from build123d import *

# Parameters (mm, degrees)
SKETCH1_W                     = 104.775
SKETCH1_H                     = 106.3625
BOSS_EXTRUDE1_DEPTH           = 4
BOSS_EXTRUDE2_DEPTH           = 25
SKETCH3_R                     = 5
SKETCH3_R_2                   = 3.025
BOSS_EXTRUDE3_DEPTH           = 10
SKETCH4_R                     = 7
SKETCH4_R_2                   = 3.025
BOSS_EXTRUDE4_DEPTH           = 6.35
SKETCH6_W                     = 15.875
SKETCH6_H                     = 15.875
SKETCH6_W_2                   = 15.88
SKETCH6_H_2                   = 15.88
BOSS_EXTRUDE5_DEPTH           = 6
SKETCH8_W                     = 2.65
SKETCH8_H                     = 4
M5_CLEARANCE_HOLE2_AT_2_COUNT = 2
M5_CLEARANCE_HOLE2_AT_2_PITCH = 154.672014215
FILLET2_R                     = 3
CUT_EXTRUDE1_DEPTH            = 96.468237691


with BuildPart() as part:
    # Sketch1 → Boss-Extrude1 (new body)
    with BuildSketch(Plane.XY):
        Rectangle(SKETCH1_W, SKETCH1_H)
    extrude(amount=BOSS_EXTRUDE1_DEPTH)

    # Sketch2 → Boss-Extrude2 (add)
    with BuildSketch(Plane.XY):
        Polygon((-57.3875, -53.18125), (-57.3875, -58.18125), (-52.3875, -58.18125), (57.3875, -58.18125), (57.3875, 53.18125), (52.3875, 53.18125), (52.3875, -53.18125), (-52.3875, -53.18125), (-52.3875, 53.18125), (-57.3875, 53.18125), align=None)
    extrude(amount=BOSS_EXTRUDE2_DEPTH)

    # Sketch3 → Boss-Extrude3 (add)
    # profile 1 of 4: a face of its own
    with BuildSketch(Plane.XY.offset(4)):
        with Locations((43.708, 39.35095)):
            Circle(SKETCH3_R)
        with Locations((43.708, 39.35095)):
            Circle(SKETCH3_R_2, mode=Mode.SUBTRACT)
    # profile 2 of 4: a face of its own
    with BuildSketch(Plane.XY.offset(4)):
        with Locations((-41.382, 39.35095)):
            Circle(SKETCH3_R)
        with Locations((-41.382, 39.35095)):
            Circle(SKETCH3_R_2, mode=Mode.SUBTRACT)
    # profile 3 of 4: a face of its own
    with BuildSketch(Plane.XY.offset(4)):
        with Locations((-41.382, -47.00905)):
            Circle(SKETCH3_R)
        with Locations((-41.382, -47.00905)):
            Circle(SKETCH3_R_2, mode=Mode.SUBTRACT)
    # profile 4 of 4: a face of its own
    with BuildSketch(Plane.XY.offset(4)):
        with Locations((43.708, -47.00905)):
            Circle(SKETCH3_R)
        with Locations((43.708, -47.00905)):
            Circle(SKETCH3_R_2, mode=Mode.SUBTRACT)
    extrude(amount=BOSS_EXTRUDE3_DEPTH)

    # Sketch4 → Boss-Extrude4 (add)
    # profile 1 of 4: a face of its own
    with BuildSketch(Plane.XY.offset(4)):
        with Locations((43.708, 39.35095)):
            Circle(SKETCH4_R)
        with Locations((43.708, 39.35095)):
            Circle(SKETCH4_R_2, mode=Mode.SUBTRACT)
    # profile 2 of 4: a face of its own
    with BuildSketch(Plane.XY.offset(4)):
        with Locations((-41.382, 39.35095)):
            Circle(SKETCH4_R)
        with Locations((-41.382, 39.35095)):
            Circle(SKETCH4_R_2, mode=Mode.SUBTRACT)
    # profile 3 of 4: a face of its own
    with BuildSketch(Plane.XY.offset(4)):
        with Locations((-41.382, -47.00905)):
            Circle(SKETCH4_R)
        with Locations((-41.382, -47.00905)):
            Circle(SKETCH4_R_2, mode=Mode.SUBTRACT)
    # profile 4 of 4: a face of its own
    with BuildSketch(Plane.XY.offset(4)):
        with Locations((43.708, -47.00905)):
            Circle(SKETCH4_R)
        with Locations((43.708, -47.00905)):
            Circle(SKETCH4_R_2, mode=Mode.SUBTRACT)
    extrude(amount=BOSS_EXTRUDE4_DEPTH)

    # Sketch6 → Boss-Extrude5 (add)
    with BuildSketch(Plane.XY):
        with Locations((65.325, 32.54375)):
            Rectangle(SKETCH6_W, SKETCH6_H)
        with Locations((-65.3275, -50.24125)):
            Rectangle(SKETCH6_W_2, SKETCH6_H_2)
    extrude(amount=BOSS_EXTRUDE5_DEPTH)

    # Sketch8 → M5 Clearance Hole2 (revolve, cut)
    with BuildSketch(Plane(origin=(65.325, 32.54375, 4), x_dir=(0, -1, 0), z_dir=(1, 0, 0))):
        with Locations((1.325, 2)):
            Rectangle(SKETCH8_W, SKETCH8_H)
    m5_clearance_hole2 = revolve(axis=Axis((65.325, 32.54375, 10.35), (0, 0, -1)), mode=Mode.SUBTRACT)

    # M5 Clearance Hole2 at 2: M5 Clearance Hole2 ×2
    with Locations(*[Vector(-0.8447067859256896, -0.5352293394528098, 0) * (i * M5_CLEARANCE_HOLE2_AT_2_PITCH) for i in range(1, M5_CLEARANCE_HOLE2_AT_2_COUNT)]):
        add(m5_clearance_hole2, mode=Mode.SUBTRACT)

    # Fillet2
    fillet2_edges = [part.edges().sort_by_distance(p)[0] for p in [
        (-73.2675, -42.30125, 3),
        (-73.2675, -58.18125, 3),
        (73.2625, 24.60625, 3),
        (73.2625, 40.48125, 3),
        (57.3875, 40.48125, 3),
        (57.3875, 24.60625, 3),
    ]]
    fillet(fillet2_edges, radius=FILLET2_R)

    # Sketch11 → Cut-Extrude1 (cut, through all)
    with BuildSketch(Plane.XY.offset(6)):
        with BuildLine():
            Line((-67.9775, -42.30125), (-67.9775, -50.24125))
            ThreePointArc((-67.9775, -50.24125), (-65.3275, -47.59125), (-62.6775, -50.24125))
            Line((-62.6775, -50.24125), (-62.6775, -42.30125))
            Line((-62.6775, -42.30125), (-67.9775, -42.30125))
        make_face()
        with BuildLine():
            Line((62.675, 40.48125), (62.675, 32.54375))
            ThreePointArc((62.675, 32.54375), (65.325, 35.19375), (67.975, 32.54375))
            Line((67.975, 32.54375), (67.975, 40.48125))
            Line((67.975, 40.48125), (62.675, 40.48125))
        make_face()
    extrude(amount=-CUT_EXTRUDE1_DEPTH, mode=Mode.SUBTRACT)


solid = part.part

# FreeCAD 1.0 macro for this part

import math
import FreeCAD as App
import Part
import Sketcher

V = App.Vector


def edges_at(feature, points):
    """Names of the edges that pass closest to the given points."""
    edges = feature.Shape.Edges
    near = lambda p: min(range(len(edges)), key=lambda i: edges[i].distToShape(Part.Vertex(*p))[0])
    return sorted({f"Edge{near(p) + 1}" for p in points})

doc = App.newDocument("Part")
body = doc.addObject("PartDesign::Body", "Body")

# Sketch on XY plane
sketch1 = body.newObject("Sketcher::SketchObject", "Sketch")
sketch1.AttachmentSupport = (doc.getObject("XY_Plane"), [""])
sketch1.MapMode = "FlatFace"
sketch1.addGeometry(Part.LineSegment(V(-52, 53, 0), V(-52, -53, 0)), False)
sketch1.addGeometry(Part.LineSegment(V(-52, -53, 0), V(52, -53, 0)), False)
sketch1.addGeometry(Part.LineSegment(V(52, -53, 0), V(52, 53, 0)), False)
sketch1.addGeometry(Part.LineSegment(V(52, 53, 0), V(-52, 53, 0)), False)
sketch1.addConstraint(Sketcher.Constraint("Coincident", 0, 2, 1, 1))
sketch1.addConstraint(Sketcher.Constraint("Coincident", 1, 2, 2, 1))
sketch1.addConstraint(Sketcher.Constraint("Coincident", 2, 2, 3, 1))
sketch1.addConstraint(Sketcher.Constraint("Coincident", 3, 2, 0, 1))
sketch1.addConstraint(Sketcher.Constraint("Vertical", 0))
sketch1.addConstraint(Sketcher.Constraint("Horizontal", 1))
sketch1.addConstraint(Sketcher.Constraint("Vertical", 2))
sketch1.addConstraint(Sketcher.Constraint("Horizontal", 3))
sketch1.addConstraint(Sketcher.Constraint("Symmetric", 0, 2, 2, 2, -1, 1))
sketch1.addConstraint(Sketcher.Constraint("DistanceX", 1, 1, 1, 2, 104.775))
sketch1.addConstraint(Sketcher.Constraint("DistanceY", 0, 2, 0, 1, 106.3625))
pad1 = body.newObject("PartDesign::Pad", "Pad")
pad1.Profile = sketch1
pad1.Length = 4

# Sketch on XY plane
sketch2 = body.newObject("Sketcher::SketchObject", "Sketch001")
sketch2.AttachmentSupport = (doc.getObject("XY_Plane"), [""])
sketch2.MapMode = "FlatFace"
sketch2.addGeometry(Part.LineSegment(V(-57, -58, 0), V(57, -58, 0)), False)
sketch2.addGeometry(Part.LineSegment(V(57, -58, 0), V(57, 53, 0)), False)
sketch2.addGeometry(Part.LineSegment(V(57, 53, 0), V(52, 53, 0)), False)
sketch2.addGeometry(Part.LineSegment(V(52, 53, 0), V(52, -53, 0)), False)
sketch2.addGeometry(Part.LineSegment(V(52, -53, 0), V(-52, -53, 0)), False)
sketch2.addGeometry(Part.LineSegment(V(-52, -53, 0), V(-52, 53, 0)), False)
sketch2.addGeometry(Part.LineSegment(V(-52, 53, 0), V(-57, 53, 0)), False)
sketch2.addGeometry(Part.LineSegment(V(-57, 53, 0), V(-57, -58, 0)), False)
sketch2.addConstraint(Sketcher.Constraint("Coincident", 0, 2, 1, 1))
sketch2.addConstraint(Sketcher.Constraint("Coincident", 1, 2, 2, 1))
sketch2.addConstraint(Sketcher.Constraint("Coincident", 2, 2, 3, 1))
sketch2.addConstraint(Sketcher.Constraint("Coincident", 3, 2, 4, 1))
sketch2.addConstraint(Sketcher.Constraint("Coincident", 4, 2, 5, 1))
sketch2.addConstraint(Sketcher.Constraint("Coincident", 5, 2, 6, 1))
sketch2.addConstraint(Sketcher.Constraint("Coincident", 6, 2, 7, 1))
sketch2.addConstraint(Sketcher.Constraint("Coincident", 7, 2, 0, 1))
sketch2.addConstraint(Sketcher.Constraint("Horizontal", 0))
sketch2.addConstraint(Sketcher.Constraint("Vertical", 1))
sketch2.addConstraint(Sketcher.Constraint("Horizontal", 2))
sketch2.addConstraint(Sketcher.Constraint("Vertical", 3))
sketch2.addConstraint(Sketcher.Constraint("Horizontal", 4))
sketch2.addConstraint(Sketcher.Constraint("Vertical", 5))
sketch2.addConstraint(Sketcher.Constraint("Horizontal", 6))
sketch2.addConstraint(Sketcher.Constraint("Vertical", 7))
sketch2.addConstraint(Sketcher.Constraint("Symmetric", 2, 2, 4, 2, -1, 1))
sketch2.addConstraint(Sketcher.Constraint("Symmetric", 1, 2, 6, 2, -2))
sketch2.addConstraint(Sketcher.Constraint("DistanceX", 2, 2, 2, 1, 5.0))
sketch2.addConstraint(Sketcher.Constraint("DistanceY", 0, 2, 3, 2, 5.0))
sketch2.addConstraint(Sketcher.Constraint("DistanceX", 0, 1, 0, 2, 114.775))
sketch2.addConstraint(Sketcher.Constraint("DistanceY", 1, 1, 1, 2, 111.3625))
pad2 = body.newObject("PartDesign::Pad", "Pad001")
pad2.Profile = sketch2
pad2.Length = 25

# Sketch on XY plane
sketch3 = body.newObject("Sketcher::SketchObject", "Sketch002")
sketch3.AttachmentSupport = (doc.getObject("XY_Plane"), [""])
sketch3.MapMode = "FlatFace"
sketch3.AttachmentOffset = App.Placement(V(0, 0, 4), App.Rotation())
sketch3.addGeometry(Part.Circle(V(43.7, 39.4, 0), V(0, 0, 1), 5), False)
sketch3.addGeometry(Part.Circle(V(43.7, 39.4, 0), V(0, 0, 1), 3), False)
sketch3.addGeometry(Part.Circle(V(-41.4, 39.4, 0), V(0, 0, 1), 5), False)
sketch3.addGeometry(Part.Circle(V(-41.4, 39.4, 0), V(0, 0, 1), 3), False)
sketch3.addGeometry(Part.Circle(V(-41.4, -47, 0), V(0, 0, 1), 5), False)
sketch3.addGeometry(Part.Circle(V(-41.4, -47, 0), V(0, 0, 1), 3), False)
sketch3.addGeometry(Part.Circle(V(43.7, -47, 0), V(0, 0, 1), 5), False)
sketch3.addGeometry(Part.Circle(V(43.7, -47, 0), V(0, 0, 1), 3), False)
sketch3.addConstraint(Sketcher.Constraint("Coincident", 1, 3, 0, 3))
sketch3.addConstraint(Sketcher.Constraint("Coincident", 3, 3, 2, 3))
sketch3.addConstraint(Sketcher.Constraint("Coincident", 5, 3, 4, 3))
sketch3.addConstraint(Sketcher.Constraint("Coincident", 7, 3, 6, 3))
sketch3.addConstraint(Sketcher.Constraint("Equal", 0, 2))
sketch3.addConstraint(Sketcher.Constraint("Equal", 1, 3))
sketch3.addConstraint(Sketcher.Constraint("Equal", 2, 4))
sketch3.addConstraint(Sketcher.Constraint("Equal", 3, 5))
sketch3.addConstraint(Sketcher.Constraint("Equal", 4, 6))
sketch3.addConstraint(Sketcher.Constraint("Equal", 5, 7))
sketch3.addConstraint(Sketcher.Constraint("Horizontal", 1, 3, 2, 3))
sketch3.addConstraint(Sketcher.Constraint("Horizontal", 5, 3, 6, 3))
sketch3.addConstraint(Sketcher.Constraint("Vertical", 3, 3, 4, 3))
sketch3.addConstraint(Sketcher.Constraint("Vertical", 1, 3, 6, 3))
sketch3.addConstraint(Sketcher.Constraint("Diameter", 0, 10.0))
sketch3.addConstraint(Sketcher.Constraint("Diameter", 1, 6.05))
sketch3.addConstraint(Sketcher.Constraint("DistanceX", 2, 3, 0, 3, 85.09))
sketch3.addConstraint(Sketcher.Constraint("DistanceY", 4, 3, 2, 3, 86.36))
sketch3.addConstraint(Sketcher.Constraint("DistanceX", -1, 1, 0, 3, 43.708))
sketch3.addConstraint(Sketcher.Constraint("DistanceY", -1, 1, 0, 3, 39.35095))
pad3 = body.newObject("PartDesign::Pad", "Pad002")
pad3.Profile = sketch3
pad3.Length = 10

# Sketch on XY plane
sketch4 = body.newObject("Sketcher::SketchObject", "Sketch003")
sketch4.AttachmentSupport = (doc.getObject("XY_Plane"), [""])
sketch4.MapMode = "FlatFace"
sketch4.AttachmentOffset = App.Placement(V(0, 0, 4), App.Rotation())
sketch4.addGeometry(Part.Circle(V(43.7, 39.4, 0), V(0, 0, 1), 7), False)
sketch4.addGeometry(Part.Circle(V(43.7, 39.4, 0), V(0, 0, 1), 3), False)
sketch4.addGeometry(Part.Circle(V(-41.4, 39.4, 0), V(0, 0, 1), 7), False)
sketch4.addGeometry(Part.Circle(V(-41.4, 39.4, 0), V(0, 0, 1), 3), False)
sketch4.addGeometry(Part.Circle(V(-41.4, -47, 0), V(0, 0, 1), 7), False)
sketch4.addGeometry(Part.Circle(V(-41.4, -47, 0), V(0, 0, 1), 3), False)
sketch4.addGeometry(Part.Circle(V(43.7, -47, 0), V(0, 0, 1), 7), False)
sketch4.addGeometry(Part.Circle(V(43.7, -47, 0), V(0, 0, 1), 3), False)
sketch4.addConstraint(Sketcher.Constraint("Coincident", 1, 3, 0, 3))
sketch4.addConstraint(Sketcher.Constraint("Coincident", 3, 3, 2, 3))
sketch4.addConstraint(Sketcher.Constraint("Coincident", 5, 3, 4, 3))
sketch4.addConstraint(Sketcher.Constraint("Coincident", 7, 3, 6, 3))
sketch4.addConstraint(Sketcher.Constraint("Equal", 0, 2))
sketch4.addConstraint(Sketcher.Constraint("Equal", 1, 3))
sketch4.addConstraint(Sketcher.Constraint("Equal", 2, 4))
sketch4.addConstraint(Sketcher.Constraint("Equal", 3, 5))
sketch4.addConstraint(Sketcher.Constraint("Equal", 4, 6))
sketch4.addConstraint(Sketcher.Constraint("Equal", 5, 7))
sketch4.addConstraint(Sketcher.Constraint("Horizontal", 1, 3, 2, 3))
sketch4.addConstraint(Sketcher.Constraint("Horizontal", 5, 3, 6, 3))
sketch4.addConstraint(Sketcher.Constraint("Vertical", 3, 3, 4, 3))
sketch4.addConstraint(Sketcher.Constraint("Vertical", 1, 3, 6, 3))
sketch4.addConstraint(Sketcher.Constraint("Diameter", 0, 14.0))
sketch4.addConstraint(Sketcher.Constraint("Diameter", 1, 6.05))
sketch4.addConstraint(Sketcher.Constraint("DistanceX", 2, 3, 0, 3, 85.09))
sketch4.addConstraint(Sketcher.Constraint("DistanceY", 4, 3, 2, 3, 86.36))
sketch4.addConstraint(Sketcher.Constraint("DistanceX", -1, 1, 0, 3, 43.708))
sketch4.addConstraint(Sketcher.Constraint("DistanceY", -1, 1, 0, 3, 39.35095))
pad4 = body.newObject("PartDesign::Pad", "Pad003")
pad4.Profile = sketch4
pad4.Length = 6.35

# Sketch on XY plane
sketch5 = body.newObject("Sketcher::SketchObject", "Sketch004")
sketch5.AttachmentSupport = (doc.getObject("XY_Plane"), [""])
sketch5.MapMode = "FlatFace"
sketch5.addGeometry(Part.LineSegment(V(57, 40, 0), V(57, 25, 0)), False)
sketch5.addGeometry(Part.LineSegment(V(57, 25, 0), V(73, 25, 0)), False)
sketch5.addGeometry(Part.LineSegment(V(73, 25, 0), V(73, 40, 0)), False)
sketch5.addGeometry(Part.LineSegment(V(73, 40, 0), V(57, 40, 0)), False)
sketch5.addGeometry(Part.LineSegment(V(-73, -42, 0), V(-73, -58, 0)), False)
sketch5.addGeometry(Part.LineSegment(V(-73, -58, 0), V(-57, -58, 0)), False)
sketch5.addGeometry(Part.LineSegment(V(-57, -58, 0), V(-57, -42, 0)), False)
sketch5.addGeometry(Part.LineSegment(V(-57, -42, 0), V(-73, -42, 0)), False)
sketch5.addConstraint(Sketcher.Constraint("Coincident", 0, 2, 1, 1))
sketch5.addConstraint(Sketcher.Constraint("Coincident", 1, 2, 2, 1))
sketch5.addConstraint(Sketcher.Constraint("Coincident", 2, 2, 3, 1))
sketch5.addConstraint(Sketcher.Constraint("Coincident", 3, 2, 0, 1))
sketch5.addConstraint(Sketcher.Constraint("Coincident", 4, 2, 5, 1))
sketch5.addConstraint(Sketcher.Constraint("Coincident", 5, 2, 6, 1))
sketch5.addConstraint(Sketcher.Constraint("Coincident", 6, 2, 7, 1))
sketch5.addConstraint(Sketcher.Constraint("Coincident", 7, 2, 4, 1))
sketch5.addConstraint(Sketcher.Constraint("Vertical", 0))
sketch5.addConstraint(Sketcher.Constraint("Horizontal", 1))
sketch5.addConstraint(Sketcher.Constraint("Vertical", 2))
sketch5.addConstraint(Sketcher.Constraint("Horizontal", 3))
sketch5.addConstraint(Sketcher.Constraint("Vertical", 4))
sketch5.addConstraint(Sketcher.Constraint("Horizontal", 5))
sketch5.addConstraint(Sketcher.Constraint("Vertical", 6))
sketch5.addConstraint(Sketcher.Constraint("Horizontal", 7))
sketch5.addConstraint(Sketcher.Constraint("Equal", 3, 0))
sketch5.addConstraint(Sketcher.Constraint("Equal", 7, 4))
sketch5.addConstraint(Sketcher.Constraint("DistanceX", 5, 1, 5, 2, 15.88))
sketch5.addConstraint(Sketcher.Constraint("DistanceX", 1, 1, 1, 2, 15.875))
sketch5.addConstraint(Sketcher.Constraint("DistanceX", 4, 2, 1, 2, 146.53))
sketch5.addConstraint(Sketcher.Constraint("DistanceX", -1, 1, 0, 2, 57.3875))
sketch5.addConstraint(Sketcher.Constraint("DistanceY", 4, 2, 0, 2, 82.7875))
sketch5.addConstraint(Sketcher.Constraint("DistanceY", -1, 1, 0, 2, 24.60625))
pad5 = body.newObject("PartDesign::Pad", "Pad004")
pad5.Profile = sketch5
pad5.Length = 6

# Sketch on YZ plane
sketch6 = body.newObject("Sketcher::SketchObject", "Sketch005")
sketch6.AttachmentSupport = (doc.getObject("YZ_Plane"), [""])
sketch6.MapMode = "FlatFace"
sketch6.AttachmentOffset = App.Placement(V(0, 0, 65.325), App.Rotation())
sketch6.addGeometry(Part.LineSegment(V(32.5, 0, 0), V(32.5, 4, 0)), False)
sketch6.addGeometry(Part.LineSegment(V(32.5, 4, 0), V(29.9, 4, 0)), False)
sketch6.addGeometry(Part.LineSegment(V(29.9, 4, 0), V(29.9, 0, 0)), False)
sketch6.addGeometry(Part.LineSegment(V(29.9, 0, 0), V(32.5, 0, 0)), False)
sketch6.addGeometry(Part.LineSegment(V(32.5, 4, 0), V(32.5, 0, 0)), True)  # axis
sketch6.addConstraint(Sketcher.Constraint("Coincident", 0, 2, 1, 1))
sketch6.addConstraint(Sketcher.Constraint("Coincident", 1, 2, 2, 1))
sketch6.addConstraint(Sketcher.Constraint("Coincident", 2, 2, 3, 1))
sketch6.addConstraint(Sketcher.Constraint("Coincident", 3, 2, 0, 1))
sketch6.addConstraint(Sketcher.Constraint("Vertical", 0))
sketch6.addConstraint(Sketcher.Constraint("Horizontal", 1))
sketch6.addConstraint(Sketcher.Constraint("Vertical", 2))
sketch6.addConstraint(Sketcher.Constraint("Horizontal", 3))
sketch6.addConstraint(Sketcher.Constraint("Vertical", 4))
sketch6.addConstraint(Sketcher.Constraint("Coincident", 4, 1, 0, 2))
sketch6.addConstraint(Sketcher.Constraint("PointOnObject", 2, 2, -1))
sketch6.addConstraint(Sketcher.Constraint("PointOnObject", 4, 2, -1))
sketch6.addConstraint(Sketcher.Constraint("DistanceY", 0, 1, 0, 2, 4.0))
sketch6.addConstraint(Sketcher.Constraint("DistanceX", 1, 2, 1, 1, 2.65))
sketch6.addConstraint(Sketcher.Constraint("DistanceX", -1, 1, 0, 2, 32.54375))
groove = body.newObject("PartDesign::Groove", "Groove")
groove.Profile = sketch6
groove.ReferenceAxis = (sketch6, ["Axis0"])
groove.Angle = 360
doc.recompute()

datumline = body.newObject("PartDesign::Line", "DatumLine")
datumline.Placement = App.Placement(V(0, 0, 0), App.Rotation(V(0, 0, 1), V(-0.844706786, -0.535229339, 0)))
linearpattern = body.newObject("PartDesign::LinearPattern", "LinearPattern")
linearpattern.Originals = [groove]
linearpattern.Direction = (datumline, [""])
linearpattern.Mode = "offset"
linearpattern.Offset = 154.672014
linearpattern.Occurrences = 2
body.Tip = linearpattern
doc.recompute()

fillet = body.newObject("PartDesign::Fillet", "Fillet")
fillet.Base = (linearpattern, edges_at(linearpattern, [
    (-73.267, -42.301, 3),
    (-73.267, -58.181, 3),
    (73.263, 24.606, 3),
    (73.263, 40.481, 3),
    (57.388, 40.481, 3),
    (57.388, 24.606, 3),
]))
fillet.Radius = 3

# Sketch on XY plane
sketch7 = body.newObject("Sketcher::SketchObject", "Sketch006")
sketch7.AttachmentSupport = (doc.getObject("XY_Plane"), [""])
sketch7.MapMode = "FlatFace"
sketch7.AttachmentOffset = App.Placement(V(0, 0, 6), App.Rotation())
sketch7.addGeometry(Part.LineSegment(V(-68, -42.3, 0), V(-68, -50.2, 0)), False)
sketch7.addGeometry(Part.ArcOfCircle(Part.Circle(V(-65.3, -50.2, 0), V(0, 0, 1), 2.6), math.radians(0), math.radians(180)), False)
sketch7.addGeometry(Part.LineSegment(V(-62.7, -50.2, 0), V(-62.7, -42.3, 0)), False)
sketch7.addGeometry(Part.LineSegment(V(-62.7, -42.3, 0), V(-68, -42.3, 0)), False)
sketch7.addGeometry(Part.LineSegment(V(62.7, 40.5, 0), V(62.7, 32.5, 0)), False)
sketch7.addGeometry(Part.ArcOfCircle(Part.Circle(V(65.3, 32.5, 0), V(0, 0, 1), 2.6), math.radians(0), math.radians(180)), False)
sketch7.addGeometry(Part.LineSegment(V(68, 32.5, 0), V(68, 40.5, 0)), False)
sketch7.addGeometry(Part.LineSegment(V(68, 40.5, 0), V(62.7, 40.5, 0)), False)
sketch7.addConstraint(Sketcher.Constraint("Tangent", 0, 2, 1, 2))
sketch7.addConstraint(Sketcher.Constraint("Tangent", 1, 1, 2, 1))
sketch7.addConstraint(Sketcher.Constraint("Coincident", 2, 2, 3, 1))
sketch7.addConstraint(Sketcher.Constraint("Coincident", 3, 2, 0, 1))
sketch7.addConstraint(Sketcher.Constraint("Tangent", 4, 2, 5, 2))
sketch7.addConstraint(Sketcher.Constraint("Tangent", 5, 1, 6, 1))
sketch7.addConstraint(Sketcher.Constraint("Coincident", 6, 2, 7, 1))
sketch7.addConstraint(Sketcher.Constraint("Coincident", 7, 2, 4, 1))
sketch7.addConstraint(Sketcher.Constraint("Vertical", 0))
sketch7.addConstraint(Sketcher.Constraint("Vertical", 2))
sketch7.addConstraint(Sketcher.Constraint("Horizontal", 3))
sketch7.addConstraint(Sketcher.Constraint("Vertical", 4))
sketch7.addConstraint(Sketcher.Constraint("Vertical", 6))
sketch7.addConstraint(Sketcher.Constraint("Horizontal", 7))
sketch7.addConstraint(Sketcher.Constraint("Equal", 1, 5))
sketch7.addConstraint(Sketcher.Constraint("Radius", 1, 2.65))
sketch7.addConstraint(Sketcher.Constraint("DistanceY", 0, 2, 0, 1, 7.94))
sketch7.addConstraint(Sketcher.Constraint("DistanceY", 4, 2, 4, 1, 7.9375))
sketch7.addConstraint(Sketcher.Constraint("DistanceX", -1, 1, 5, 3, 65.325))
sketch7.addConstraint(Sketcher.Constraint("DistanceY", 1, 3, 5, 3, 82.785))
sketch7.addConstraint(Sketcher.Constraint("DistanceX", 1, 3, -1, 1, 65.3275))
sketch7.addConstraint(Sketcher.Constraint("DistanceY", 1, 3, -1, 1, 50.24125))
pocket1 = body.newObject("PartDesign::Pocket", "Pocket")
pocket1.Profile = sketch7
pocket1.Type = "ThroughAll"

doc.recompute()
